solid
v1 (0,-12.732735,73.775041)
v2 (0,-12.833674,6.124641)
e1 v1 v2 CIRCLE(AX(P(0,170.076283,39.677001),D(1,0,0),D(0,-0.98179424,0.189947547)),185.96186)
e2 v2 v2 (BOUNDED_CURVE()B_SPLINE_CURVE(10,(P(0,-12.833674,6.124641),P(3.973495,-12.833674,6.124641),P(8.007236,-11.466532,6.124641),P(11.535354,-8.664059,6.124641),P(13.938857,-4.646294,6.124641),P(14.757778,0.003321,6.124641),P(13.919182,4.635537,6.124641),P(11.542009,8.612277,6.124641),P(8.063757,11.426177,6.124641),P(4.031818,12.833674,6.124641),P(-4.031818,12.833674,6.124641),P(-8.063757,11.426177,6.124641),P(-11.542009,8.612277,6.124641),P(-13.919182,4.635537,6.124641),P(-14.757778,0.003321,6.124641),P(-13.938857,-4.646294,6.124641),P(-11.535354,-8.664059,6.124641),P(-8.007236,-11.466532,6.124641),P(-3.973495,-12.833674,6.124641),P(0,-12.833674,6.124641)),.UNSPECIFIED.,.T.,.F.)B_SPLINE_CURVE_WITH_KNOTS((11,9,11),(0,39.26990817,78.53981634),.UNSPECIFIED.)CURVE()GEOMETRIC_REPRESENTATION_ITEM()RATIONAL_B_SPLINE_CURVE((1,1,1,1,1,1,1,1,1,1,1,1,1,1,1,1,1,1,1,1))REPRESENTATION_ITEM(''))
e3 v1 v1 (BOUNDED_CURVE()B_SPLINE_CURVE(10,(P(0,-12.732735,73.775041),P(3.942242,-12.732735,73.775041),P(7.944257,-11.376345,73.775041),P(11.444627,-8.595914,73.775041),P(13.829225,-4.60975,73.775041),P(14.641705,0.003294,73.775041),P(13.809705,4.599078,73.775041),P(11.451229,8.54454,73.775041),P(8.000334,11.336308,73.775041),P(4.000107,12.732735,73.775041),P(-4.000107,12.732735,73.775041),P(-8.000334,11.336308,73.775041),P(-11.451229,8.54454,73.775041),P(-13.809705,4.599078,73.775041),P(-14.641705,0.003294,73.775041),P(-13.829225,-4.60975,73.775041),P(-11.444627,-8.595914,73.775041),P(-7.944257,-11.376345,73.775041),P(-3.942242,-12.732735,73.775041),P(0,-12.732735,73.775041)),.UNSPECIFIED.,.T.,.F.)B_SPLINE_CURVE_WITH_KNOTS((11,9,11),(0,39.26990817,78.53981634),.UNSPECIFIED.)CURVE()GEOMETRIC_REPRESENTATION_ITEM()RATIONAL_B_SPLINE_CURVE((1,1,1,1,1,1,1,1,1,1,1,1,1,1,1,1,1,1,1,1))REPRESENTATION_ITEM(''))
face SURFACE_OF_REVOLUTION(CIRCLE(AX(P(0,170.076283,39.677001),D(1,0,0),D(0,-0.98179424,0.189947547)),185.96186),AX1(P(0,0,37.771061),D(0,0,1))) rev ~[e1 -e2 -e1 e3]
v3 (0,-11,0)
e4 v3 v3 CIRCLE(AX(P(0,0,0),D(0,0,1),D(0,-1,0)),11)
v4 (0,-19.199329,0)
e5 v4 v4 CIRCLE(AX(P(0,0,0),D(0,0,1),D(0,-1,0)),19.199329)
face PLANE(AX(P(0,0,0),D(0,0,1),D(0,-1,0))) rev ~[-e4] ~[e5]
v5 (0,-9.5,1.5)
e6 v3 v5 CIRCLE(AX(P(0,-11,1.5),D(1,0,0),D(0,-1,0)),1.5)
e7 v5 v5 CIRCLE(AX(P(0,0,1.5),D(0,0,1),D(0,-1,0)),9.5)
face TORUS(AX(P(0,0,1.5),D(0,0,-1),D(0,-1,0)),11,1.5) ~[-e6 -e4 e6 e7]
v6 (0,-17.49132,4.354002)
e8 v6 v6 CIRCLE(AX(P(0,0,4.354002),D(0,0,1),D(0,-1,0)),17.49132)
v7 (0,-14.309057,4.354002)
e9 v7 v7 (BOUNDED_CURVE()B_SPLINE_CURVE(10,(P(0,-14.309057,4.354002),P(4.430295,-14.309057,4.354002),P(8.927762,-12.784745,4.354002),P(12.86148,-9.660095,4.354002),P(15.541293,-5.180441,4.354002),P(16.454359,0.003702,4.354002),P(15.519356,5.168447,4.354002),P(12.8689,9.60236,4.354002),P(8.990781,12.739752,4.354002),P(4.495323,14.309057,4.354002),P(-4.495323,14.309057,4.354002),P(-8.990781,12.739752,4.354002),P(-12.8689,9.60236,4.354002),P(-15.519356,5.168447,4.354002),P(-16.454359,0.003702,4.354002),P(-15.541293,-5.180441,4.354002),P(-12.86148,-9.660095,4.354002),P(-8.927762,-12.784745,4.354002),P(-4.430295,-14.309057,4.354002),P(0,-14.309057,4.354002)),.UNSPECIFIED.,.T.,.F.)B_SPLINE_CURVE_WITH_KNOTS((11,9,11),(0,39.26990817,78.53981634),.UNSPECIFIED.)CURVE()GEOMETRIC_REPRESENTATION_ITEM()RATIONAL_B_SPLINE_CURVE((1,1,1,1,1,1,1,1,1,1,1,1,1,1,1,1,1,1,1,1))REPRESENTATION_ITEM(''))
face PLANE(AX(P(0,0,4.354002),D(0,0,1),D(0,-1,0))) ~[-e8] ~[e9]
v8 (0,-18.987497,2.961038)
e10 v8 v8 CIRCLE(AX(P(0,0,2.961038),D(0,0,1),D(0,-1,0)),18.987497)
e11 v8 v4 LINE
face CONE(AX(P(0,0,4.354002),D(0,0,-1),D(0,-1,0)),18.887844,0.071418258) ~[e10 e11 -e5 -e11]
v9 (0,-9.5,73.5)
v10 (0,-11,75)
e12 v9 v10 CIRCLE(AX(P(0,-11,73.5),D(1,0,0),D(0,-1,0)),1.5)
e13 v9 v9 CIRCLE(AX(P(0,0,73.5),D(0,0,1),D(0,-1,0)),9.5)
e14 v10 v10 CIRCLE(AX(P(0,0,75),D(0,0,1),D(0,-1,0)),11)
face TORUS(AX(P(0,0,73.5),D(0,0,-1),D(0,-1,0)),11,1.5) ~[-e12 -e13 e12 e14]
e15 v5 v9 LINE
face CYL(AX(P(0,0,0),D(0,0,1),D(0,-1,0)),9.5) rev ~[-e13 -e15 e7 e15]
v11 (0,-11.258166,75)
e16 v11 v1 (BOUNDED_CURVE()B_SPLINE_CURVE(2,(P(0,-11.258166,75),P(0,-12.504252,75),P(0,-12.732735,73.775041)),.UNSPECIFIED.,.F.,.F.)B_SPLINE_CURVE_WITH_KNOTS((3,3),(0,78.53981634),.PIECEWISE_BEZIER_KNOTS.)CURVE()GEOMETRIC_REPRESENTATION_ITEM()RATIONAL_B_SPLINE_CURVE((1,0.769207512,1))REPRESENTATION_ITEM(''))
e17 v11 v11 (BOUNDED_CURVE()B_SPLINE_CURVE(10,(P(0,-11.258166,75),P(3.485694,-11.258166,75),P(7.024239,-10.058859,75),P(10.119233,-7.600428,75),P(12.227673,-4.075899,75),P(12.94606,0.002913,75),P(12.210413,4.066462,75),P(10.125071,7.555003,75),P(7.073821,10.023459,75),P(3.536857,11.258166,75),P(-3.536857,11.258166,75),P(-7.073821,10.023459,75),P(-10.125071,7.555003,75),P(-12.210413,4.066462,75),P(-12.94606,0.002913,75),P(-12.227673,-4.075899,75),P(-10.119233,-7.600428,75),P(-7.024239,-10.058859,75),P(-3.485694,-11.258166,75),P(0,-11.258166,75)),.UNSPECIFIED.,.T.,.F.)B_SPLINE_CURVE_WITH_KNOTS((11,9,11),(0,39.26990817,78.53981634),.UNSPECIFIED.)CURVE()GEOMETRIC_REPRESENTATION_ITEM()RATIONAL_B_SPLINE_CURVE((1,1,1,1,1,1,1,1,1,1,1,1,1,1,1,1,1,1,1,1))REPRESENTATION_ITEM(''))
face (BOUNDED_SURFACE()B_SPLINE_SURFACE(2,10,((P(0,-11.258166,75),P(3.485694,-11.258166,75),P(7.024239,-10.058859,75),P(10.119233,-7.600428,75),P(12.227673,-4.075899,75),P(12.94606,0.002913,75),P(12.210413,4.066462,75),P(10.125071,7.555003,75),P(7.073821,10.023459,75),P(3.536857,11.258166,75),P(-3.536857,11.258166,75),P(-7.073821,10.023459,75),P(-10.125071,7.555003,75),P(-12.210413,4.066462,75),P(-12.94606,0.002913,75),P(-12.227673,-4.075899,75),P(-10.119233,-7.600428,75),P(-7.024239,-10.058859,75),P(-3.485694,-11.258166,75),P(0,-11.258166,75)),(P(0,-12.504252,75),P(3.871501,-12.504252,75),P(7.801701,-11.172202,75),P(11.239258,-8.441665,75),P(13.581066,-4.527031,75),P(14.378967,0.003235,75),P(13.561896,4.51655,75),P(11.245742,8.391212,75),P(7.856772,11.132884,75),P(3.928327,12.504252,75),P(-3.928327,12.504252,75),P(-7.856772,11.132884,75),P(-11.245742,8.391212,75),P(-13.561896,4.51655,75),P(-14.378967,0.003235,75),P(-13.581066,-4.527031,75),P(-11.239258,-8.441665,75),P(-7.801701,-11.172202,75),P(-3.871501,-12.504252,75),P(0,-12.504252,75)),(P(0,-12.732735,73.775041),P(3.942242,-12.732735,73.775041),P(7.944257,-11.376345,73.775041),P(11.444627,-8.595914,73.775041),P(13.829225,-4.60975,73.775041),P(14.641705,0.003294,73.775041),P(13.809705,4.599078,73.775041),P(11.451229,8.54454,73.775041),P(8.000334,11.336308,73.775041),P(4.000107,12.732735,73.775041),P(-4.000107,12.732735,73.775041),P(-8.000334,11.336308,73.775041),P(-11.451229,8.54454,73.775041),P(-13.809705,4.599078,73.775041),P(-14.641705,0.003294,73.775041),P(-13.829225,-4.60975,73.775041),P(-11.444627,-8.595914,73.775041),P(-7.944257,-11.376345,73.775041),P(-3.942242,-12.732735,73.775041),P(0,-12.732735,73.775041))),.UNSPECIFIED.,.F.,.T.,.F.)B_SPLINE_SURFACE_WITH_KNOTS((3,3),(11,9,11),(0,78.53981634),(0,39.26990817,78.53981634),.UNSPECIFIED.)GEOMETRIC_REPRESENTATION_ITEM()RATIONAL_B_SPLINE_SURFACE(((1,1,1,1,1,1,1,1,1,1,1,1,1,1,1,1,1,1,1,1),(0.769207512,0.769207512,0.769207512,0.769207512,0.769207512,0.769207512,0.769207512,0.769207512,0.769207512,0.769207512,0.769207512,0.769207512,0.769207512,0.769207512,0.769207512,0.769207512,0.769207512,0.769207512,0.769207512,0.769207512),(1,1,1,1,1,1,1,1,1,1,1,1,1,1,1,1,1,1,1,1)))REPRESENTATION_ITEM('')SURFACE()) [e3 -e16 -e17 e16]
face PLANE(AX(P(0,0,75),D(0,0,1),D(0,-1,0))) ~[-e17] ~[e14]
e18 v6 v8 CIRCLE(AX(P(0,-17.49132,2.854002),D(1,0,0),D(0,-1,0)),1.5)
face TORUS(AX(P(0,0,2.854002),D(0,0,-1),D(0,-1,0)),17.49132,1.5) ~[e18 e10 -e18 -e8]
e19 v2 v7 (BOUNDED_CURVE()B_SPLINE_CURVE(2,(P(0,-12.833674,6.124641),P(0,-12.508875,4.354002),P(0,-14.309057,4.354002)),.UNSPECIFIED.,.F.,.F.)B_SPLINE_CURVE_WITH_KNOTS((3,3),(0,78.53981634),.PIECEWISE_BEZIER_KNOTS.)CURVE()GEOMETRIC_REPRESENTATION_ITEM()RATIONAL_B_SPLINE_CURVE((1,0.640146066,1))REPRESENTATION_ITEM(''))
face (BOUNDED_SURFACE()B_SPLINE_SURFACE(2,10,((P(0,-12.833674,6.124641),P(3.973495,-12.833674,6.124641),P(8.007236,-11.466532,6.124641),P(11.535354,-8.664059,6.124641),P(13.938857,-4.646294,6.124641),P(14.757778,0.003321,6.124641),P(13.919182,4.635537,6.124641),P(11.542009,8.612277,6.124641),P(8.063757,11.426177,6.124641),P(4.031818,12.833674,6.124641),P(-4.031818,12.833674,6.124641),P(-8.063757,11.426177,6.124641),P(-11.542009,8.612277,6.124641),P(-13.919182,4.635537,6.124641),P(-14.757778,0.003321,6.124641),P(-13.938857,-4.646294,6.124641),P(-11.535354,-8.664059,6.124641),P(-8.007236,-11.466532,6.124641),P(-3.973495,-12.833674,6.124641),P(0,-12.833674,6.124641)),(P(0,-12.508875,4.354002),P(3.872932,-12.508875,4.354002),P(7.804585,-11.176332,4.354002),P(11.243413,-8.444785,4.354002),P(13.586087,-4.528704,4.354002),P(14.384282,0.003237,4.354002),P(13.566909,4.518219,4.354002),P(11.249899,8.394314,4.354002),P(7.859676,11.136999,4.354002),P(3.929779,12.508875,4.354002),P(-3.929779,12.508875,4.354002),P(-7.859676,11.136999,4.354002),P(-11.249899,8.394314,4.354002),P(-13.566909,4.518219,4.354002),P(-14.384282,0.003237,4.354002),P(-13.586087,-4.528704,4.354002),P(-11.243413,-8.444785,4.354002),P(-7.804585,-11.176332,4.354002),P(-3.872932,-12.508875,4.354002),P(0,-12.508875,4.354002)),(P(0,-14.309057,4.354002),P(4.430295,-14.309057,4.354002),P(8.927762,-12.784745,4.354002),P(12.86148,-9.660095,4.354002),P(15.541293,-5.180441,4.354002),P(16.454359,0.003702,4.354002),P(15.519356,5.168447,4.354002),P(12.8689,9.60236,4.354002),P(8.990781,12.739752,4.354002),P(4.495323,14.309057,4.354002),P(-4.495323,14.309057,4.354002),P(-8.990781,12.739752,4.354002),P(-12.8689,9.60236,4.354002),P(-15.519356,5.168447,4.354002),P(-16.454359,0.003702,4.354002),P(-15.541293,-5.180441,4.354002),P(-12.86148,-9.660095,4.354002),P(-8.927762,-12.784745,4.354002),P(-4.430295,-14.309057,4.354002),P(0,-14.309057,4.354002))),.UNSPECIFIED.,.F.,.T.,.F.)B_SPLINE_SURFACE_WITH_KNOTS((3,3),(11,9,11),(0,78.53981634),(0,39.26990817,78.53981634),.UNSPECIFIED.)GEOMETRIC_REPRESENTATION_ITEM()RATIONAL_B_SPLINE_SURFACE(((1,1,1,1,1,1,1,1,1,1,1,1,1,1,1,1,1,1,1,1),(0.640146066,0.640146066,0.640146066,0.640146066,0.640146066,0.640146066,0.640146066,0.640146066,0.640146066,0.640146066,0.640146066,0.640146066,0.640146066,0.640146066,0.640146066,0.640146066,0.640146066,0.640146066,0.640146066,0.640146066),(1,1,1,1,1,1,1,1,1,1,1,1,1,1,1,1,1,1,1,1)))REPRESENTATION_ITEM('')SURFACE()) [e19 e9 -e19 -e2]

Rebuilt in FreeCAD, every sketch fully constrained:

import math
import FreeCAD as App
import Part
import Sketcher

V = App.Vector


def edges_at(feature, points):
    """Names of the edges that pass closest to the given points."""
    edges = feature.Shape.Edges
    near = lambda p: min(range(len(edges)), key=lambda i: edges[i].distToShape(Part.Vertex(*p))[0])
    return sorted({f"Edge{near(p) + 1}" for p in points})

doc = App.newDocument("Part")
params = doc.addObject("Spreadsheet::Sheet", "Params")
for row, (alias, value) in enumerate([
    ("sketch1_width", "3 mm"),
    ("sketch1_height", "75 mm"),
    ("revolution_angle", "360 deg"),
    ("fillet_radius", "1.5 mm"),
], start=1):
    params.set(f"A{row}", alias)
    params.set(f"B{row}", "=" + value)
    params.setAlias(f"B{row}", alias)

body = doc.addObject("PartDesign::Body", "Body")

sketch1 = body.newObject("Sketcher::SketchObject", "Sketch")
sketch1.AttachmentSupport = (doc.getObject("YZ_Plane"), [""])
sketch1.MapMode = "FlatFace"
sketch1.addGeometry(Part.LineSegment(V(-19.199329, 0, 0), V(-9.5, 0, 0)), False)
sketch1.addGeometry(Part.LineSegment(V(-9.5, 0, 0), V(-9.5, 75, 0)), False)
sketch1.addGeometry(Part.LineSegment(V(-9.5, 75, 0), V(-12.5, 75, 0)), False)
sketch1.addGeometry(Part.ArcOfCircle(Part.Circle(V(170.076283, 39.677001, 0), V(0, 0, 1), 185.96186), math.radians(169.050277), math.radians(190.949723)), False)
sketch1.addGeometry(Part.LineSegment(V(-12.5, 4.354002, 0), V(-18.887844, 4.354002, 0)), False)
sketch1.addGeometry(Part.LineSegment(V(-18.887844, 4.354002, 0), V(-19.199329, 0, 0)), False)
sketch1.addConstraint(Sketcher.Constraint("Coincident", 0, 2, 1, 1))
sketch1.addConstraint(Sketcher.Constraint("Coincident", 1, 2, 2, 1))
sketch1.addConstraint(Sketcher.Constraint("Coincident", 2, 2, 3, 1))
sketch1.addConstraint(Sketcher.Constraint("Coincident", 3, 2, 4, 1))
sketch1.addConstraint(Sketcher.Constraint("Coincident", 4, 2, 5, 1))
sketch1.addConstraint(Sketcher.Constraint("Coincident", 5, 2, 0, 1))
sketch1.addConstraint(Sketcher.Constraint("Horizontal", 0))
sketch1.addConstraint(Sketcher.Constraint("Vertical", 1))
sketch1.addConstraint(Sketcher.Constraint("Horizontal", 2))
sketch1.addConstraint(Sketcher.Constraint("Horizontal", 4))
sketch1.addConstraint(Sketcher.Constraint("PointOnObject", 0, 2, -1))
sketch1.addConstraint(Sketcher.Constraint("Vertical", 2, 2, 3, 2))
sketch1.addConstraint(Sketcher.Constraint("DistanceX", 2, 2, 2, 1, 3.0))
sketch1.addConstraint(Sketcher.Constraint("DistanceY", 1, 1, 1, 2, 75.0))
sketch1.addConstraint(Sketcher.Constraint("DistanceX", 0, 2, -1, 1, 9.5))
sketch1.addConstraint(Sketcher.Constraint("Radius", 3, 185.96186))
sketch1.addConstraint(Sketcher.Constraint("DistanceY", -1, 1, 3, 3, 39.677001))
sketch1.addConstraint(Sketcher.Constraint("DistanceX", 0, 1, 0, 2, 9.699329))
sketch1.addConstraint(Sketcher.Constraint("Distance", 5, 4.36513))
sketch1.setExpression("Constraints[12]", "Params.sketch1_width")
sketch1.setExpression("Constraints[13]", "Params.sketch1_height")
revolution = body.newObject("PartDesign::Revolution", "Revolution")
revolution.Profile = sketch1
revolution.ReferenceAxis = (sketch1, ["V_Axis"])
revolution.setExpression("Angle", "Params.revolution_angle")
doc.recompute()

fillet = body.newObject("PartDesign::Fillet", "Fillet")
fillet.Base = (revolution, edges_at(revolution, [
    (0, 9.5, 75),
    (0, 18.888, 4.354),
    (0, 12.5, 4.354),
    (0, 12.5, 75),
    (0, 9.5, 0),
]))
fillet.setExpression("Radius", "Params.fillet_radius")

doc.recompute()
